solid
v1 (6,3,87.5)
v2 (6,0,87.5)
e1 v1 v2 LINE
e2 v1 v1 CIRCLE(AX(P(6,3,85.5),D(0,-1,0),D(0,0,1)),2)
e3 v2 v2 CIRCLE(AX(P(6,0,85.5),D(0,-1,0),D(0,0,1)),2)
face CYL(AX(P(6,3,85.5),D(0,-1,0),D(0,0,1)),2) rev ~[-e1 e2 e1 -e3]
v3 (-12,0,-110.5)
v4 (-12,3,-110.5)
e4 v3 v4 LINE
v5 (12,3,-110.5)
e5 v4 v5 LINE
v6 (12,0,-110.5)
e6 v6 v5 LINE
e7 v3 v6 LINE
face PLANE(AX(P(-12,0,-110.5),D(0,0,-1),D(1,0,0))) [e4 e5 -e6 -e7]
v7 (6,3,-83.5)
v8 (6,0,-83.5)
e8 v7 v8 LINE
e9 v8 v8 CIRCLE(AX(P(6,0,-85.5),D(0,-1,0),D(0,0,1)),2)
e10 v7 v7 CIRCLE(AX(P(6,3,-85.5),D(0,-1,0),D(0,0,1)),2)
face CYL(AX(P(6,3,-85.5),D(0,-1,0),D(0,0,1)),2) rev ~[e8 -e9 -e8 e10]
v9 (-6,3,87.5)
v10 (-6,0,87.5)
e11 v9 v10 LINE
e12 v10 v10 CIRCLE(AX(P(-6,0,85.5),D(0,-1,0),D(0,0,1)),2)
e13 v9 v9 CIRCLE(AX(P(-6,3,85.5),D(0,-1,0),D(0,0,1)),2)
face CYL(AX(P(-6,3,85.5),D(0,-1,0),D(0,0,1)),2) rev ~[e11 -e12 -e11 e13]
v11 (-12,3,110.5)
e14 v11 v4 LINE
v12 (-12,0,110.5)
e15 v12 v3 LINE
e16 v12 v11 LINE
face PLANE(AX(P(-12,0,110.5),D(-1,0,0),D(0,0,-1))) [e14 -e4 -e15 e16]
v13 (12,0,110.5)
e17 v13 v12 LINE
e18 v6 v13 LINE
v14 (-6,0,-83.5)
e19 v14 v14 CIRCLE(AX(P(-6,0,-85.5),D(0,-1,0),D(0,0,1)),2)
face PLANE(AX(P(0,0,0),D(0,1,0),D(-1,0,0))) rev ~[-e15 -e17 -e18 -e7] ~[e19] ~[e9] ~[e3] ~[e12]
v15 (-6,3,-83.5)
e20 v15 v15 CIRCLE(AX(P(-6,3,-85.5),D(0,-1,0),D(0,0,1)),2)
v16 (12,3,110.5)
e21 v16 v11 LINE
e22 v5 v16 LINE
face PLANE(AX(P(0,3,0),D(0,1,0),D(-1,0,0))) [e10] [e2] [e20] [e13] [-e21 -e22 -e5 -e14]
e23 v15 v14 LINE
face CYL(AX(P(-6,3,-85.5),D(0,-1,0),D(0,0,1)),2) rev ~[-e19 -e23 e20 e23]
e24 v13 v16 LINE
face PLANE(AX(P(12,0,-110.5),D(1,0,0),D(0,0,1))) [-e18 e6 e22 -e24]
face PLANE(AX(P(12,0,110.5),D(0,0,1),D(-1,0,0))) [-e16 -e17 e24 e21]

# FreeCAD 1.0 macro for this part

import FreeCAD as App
import Part
import Sketcher

V = App.Vector


def add_polygon(sketch, points):
    """Adds a closed chain of lines whose ends are joined by coincident constraints."""
    first, n = sketch.GeometryCount, len(points)
    for a, b in zip(points, points[1:] + points[:1]):
        sketch.addGeometry(Part.LineSegment(App.Vector(*a, 0), App.Vector(*b, 0)), False)
    for i in range(n):
        sketch.addConstraint(Sketcher.Constraint("Coincident", first + i, 2, first + (i + 1) % n, 1))

doc = App.newDocument("Part")
body = doc.addObject("PartDesign::Body", "Body")

# Sketch on XZ plane
sketch1 = doc.addObject("Sketcher::SketchObject", "Sketch")
body.addObject(sketch1)
sketch1.AttachmentSupport = (doc.XZ_Plane, [""])
sketch1.MapMode = "FlatFace"
add_polygon(sketch1, [(-12, 110), (12, 110), (12, -110), (-12, -110)])  # lines 0-3
sketch1.addConstraint(Sketcher.Constraint("Horizontal", 0))
sketch1.addConstraint(Sketcher.Constraint("Vertical", 1))
sketch1.addConstraint(Sketcher.Constraint("Horizontal", 2))
sketch1.addConstraint(Sketcher.Constraint("Vertical", 3))
sketch1.addConstraint(Sketcher.Constraint("Symmetric", 0, 2, 2, 2, -1, 1))
sketch1.addConstraint(Sketcher.Constraint("DistanceX", 0, 1, 0, 2, 24.0))
sketch1.addConstraint(Sketcher.Constraint("DistanceY", 1, 2, 1, 1, 221.0))
pad1 = doc.addObject("PartDesign::Pad", "Pad")
body.addObject(pad1)
pad1.Profile = sketch1
pad1.Length = 3
pad1.Reversed = True

# Sketch on XZ plane
sketch2 = doc.addObject("Sketcher::SketchObject", "Sketch001")
body.addObject(sketch2)
sketch2.AttachmentSupport = (doc.XZ_Plane, [""])
sketch2.MapMode = "FlatFace"
sketch2.AttachmentOffset = App.Placement(V(0, 0, -3), App.Rotation())
sketch2.addGeometry(Part.Circle(V(-6, 85.5, 0), V(0, 0, 1), 2), False)
sketch2.addGeometry(Part.Circle(V(6, 85.5, 0), V(0, 0, 1), 2), False)
sketch2.addGeometry(Part.Circle(V(-6, -85.5, 0), V(0, 0, 1), 2), False)
sketch2.addGeometry(Part.Circle(V(6, -85.5, 0), V(0, 0, 1), 2), False)
sketch2.addConstraint(Sketcher.Constraint("Equal", 0, 1))
sketch2.addConstraint(Sketcher.Constraint("Equal", 1, 2))
sketch2.addConstraint(Sketcher.Constraint("Equal", 2, 3))
sketch2.addConstraint(Sketcher.Constraint("Symmetric", 1, 3, 2, 3, -1, 1))
sketch2.addConstraint(Sketcher.Constraint("Symmetric", 0, 3, 3, 3, -1, 1))
sketch2.addConstraint(Sketcher.Constraint("Symmetric", 0, 3, 1, 3, -2))
sketch2.addConstraint(Sketcher.Constraint("Diameter", 0, 4.0))
sketch2.addConstraint(Sketcher.Constraint("DistanceX", 0, 3, -1, 1, 6.0))
sketch2.addConstraint(Sketcher.Constraint("DistanceY", 2, 3, 0, 3, 171.0))
doc.recompute()
hole = doc.addObject("PartDesign::Hole", "Hole")
body.addObject(hole)
hole.Profile = sketch2
hole.ThreadType = "None"
hole.Diameter = 4
hole.DepthType = "Dimension"
hole.Depth = 3
hole.DrillPoint = "Flat"
hole.Reversed = True

doc.recompute()
